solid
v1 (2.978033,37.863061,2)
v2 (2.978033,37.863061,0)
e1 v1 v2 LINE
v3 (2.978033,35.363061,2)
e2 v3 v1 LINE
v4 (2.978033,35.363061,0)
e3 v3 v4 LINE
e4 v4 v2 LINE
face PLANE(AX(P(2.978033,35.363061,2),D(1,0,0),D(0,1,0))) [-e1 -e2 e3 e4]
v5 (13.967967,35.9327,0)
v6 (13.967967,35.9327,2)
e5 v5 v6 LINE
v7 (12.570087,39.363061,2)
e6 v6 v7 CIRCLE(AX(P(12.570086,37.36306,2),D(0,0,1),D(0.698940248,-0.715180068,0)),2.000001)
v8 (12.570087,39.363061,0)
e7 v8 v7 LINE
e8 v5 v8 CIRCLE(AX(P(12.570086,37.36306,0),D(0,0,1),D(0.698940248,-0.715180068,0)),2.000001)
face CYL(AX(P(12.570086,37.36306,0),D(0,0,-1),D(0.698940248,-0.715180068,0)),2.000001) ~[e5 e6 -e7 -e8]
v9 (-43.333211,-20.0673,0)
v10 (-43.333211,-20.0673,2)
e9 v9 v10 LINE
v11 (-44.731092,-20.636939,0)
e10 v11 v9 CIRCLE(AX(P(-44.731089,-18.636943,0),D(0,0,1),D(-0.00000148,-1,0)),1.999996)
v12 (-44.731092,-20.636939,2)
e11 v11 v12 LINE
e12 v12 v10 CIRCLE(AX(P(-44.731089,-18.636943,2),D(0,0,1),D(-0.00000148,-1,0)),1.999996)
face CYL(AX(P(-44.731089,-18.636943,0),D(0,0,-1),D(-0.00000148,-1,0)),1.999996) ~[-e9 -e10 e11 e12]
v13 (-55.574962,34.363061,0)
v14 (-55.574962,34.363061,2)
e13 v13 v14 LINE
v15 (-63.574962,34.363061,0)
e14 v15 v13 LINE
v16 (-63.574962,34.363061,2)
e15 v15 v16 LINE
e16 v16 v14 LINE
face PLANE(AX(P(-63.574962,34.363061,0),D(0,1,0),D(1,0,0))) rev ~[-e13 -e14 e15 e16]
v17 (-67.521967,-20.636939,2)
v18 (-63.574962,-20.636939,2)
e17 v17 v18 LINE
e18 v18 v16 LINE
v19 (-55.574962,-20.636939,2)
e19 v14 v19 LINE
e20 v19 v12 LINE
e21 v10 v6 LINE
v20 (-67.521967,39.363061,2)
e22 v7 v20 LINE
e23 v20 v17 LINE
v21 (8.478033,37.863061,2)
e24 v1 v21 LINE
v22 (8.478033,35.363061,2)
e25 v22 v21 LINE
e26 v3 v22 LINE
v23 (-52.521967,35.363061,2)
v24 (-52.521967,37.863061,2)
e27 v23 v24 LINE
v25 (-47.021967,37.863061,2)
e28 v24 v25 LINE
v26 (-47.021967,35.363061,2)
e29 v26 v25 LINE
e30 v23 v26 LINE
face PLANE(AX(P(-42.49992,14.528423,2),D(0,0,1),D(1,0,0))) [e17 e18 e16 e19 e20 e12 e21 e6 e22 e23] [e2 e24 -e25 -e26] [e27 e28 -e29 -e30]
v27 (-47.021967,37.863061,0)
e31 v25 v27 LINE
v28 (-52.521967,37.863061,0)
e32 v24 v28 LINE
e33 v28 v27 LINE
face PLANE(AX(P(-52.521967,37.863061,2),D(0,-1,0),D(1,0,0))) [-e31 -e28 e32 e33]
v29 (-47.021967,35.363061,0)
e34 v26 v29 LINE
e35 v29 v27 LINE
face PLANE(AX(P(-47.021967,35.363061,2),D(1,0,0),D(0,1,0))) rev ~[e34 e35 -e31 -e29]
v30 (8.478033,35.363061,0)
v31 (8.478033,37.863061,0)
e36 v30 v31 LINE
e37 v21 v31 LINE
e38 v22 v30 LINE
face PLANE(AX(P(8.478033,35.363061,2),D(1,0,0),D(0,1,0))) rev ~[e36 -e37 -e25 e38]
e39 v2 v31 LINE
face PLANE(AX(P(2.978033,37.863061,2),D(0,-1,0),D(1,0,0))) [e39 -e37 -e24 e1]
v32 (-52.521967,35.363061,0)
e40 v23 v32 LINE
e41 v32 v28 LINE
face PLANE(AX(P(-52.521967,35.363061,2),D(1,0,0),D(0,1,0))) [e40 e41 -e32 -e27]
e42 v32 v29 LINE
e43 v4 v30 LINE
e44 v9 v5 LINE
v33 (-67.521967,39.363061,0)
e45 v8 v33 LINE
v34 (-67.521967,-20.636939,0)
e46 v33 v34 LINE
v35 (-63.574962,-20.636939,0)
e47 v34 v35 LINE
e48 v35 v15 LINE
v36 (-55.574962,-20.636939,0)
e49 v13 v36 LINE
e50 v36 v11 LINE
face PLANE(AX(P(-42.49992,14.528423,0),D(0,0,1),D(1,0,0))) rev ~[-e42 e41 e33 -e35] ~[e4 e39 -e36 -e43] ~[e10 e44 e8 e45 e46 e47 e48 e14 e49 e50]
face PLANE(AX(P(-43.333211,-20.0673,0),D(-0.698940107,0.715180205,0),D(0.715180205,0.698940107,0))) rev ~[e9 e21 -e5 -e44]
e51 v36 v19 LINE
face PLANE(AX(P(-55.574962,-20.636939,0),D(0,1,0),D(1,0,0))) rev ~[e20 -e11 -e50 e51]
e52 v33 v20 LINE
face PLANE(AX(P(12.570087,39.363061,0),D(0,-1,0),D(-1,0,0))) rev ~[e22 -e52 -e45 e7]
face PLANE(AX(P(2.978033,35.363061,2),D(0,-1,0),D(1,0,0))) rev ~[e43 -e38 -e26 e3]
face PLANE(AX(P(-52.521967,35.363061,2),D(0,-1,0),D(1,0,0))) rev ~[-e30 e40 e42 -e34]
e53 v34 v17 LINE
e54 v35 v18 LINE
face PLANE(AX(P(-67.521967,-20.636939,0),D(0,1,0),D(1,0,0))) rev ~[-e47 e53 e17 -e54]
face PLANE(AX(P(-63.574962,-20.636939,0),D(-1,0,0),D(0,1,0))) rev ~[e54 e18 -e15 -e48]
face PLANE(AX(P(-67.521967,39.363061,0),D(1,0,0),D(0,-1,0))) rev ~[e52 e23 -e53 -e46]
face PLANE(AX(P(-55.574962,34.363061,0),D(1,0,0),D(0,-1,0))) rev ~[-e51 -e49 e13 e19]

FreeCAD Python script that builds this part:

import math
import FreeCAD as App
import Part
import Sketcher
from FreeCAD import Vector
Q = App.Units.Quantity

doc = App.newDocument("Part")
params = doc.addObject("Spreadsheet::Sheet", "Params")
for row, (alias, value) in enumerate([
    ("sketch1_radius", "2.000001 mm"),
    ("sketch1_width", "8 mm"),
    ("sketch1_height", "60 mm"),
    ("sketch1_height2", "55 mm"),
    ("pad1_length", "2 mm"),
    ("sketch2_width", "5.5 mm"),
    ("sketch2_height", "2.5 mm"),
    ("pocket1_length", "25 mm"),
], start=1):
    params.set(f"A{row}", alias)
    params.set(f"B{row}", "=" + value)
    params.setAlias(f"B{row}", alias)

body = doc.addObject("PartDesign::Body", "Body")

sketch1 = body.newObject("Sketcher::SketchObject", "Sketch")
sketch1.AttachmentSupport = (doc.getObject("XY_Plane"), [""])
sketch1.MapMode = "FlatFace"
sketch1.addGeometry([
    Part.LineSegment(Vector(12.6, 39.4, 0), Vector(-67.5, 39.4, 0)),
    Part.LineSegment(Vector(-67.5, 39.4, 0), Vector(-67.5, -20.6, 0)),
    Part.LineSegment(Vector(-67.5, -20.6, 0), Vector(-63.6, -20.6, 0)),
    Part.LineSegment(Vector(-63.6, -20.6, 0), Vector(-63.6, 34.4, 0)),
    Part.LineSegment(Vector(-63.6, 34.4, 0), Vector(-55.6, 34.4, 0)),
    Part.LineSegment(Vector(-55.6, 34.4, 0), Vector(-55.6, -20.6, 0)),
    Part.LineSegment(Vector(-55.6, -20.6, 0), Vector(-44.7, -20.6, 0)),
    Part.ArcOfCircle(Part.Circle(Vector(-44.7, -18.6, 0), Vector(0, 0, 1), 2), math.radians(-90), math.radians(-46)),
    Part.LineSegment(Vector(-43.3, -20.1, 0), Vector(14, 35.9, 0)),
    Part.ArcOfCircle(Part.Circle(Vector(12.6, 37.4, 0), Vector(0, 0, 1), 2), math.radians(-46), math.radians(90)),
], False)
sketch1.addConstraint([
    Sketcher.Constraint("Coincident", 0, 2, 1, 1),
    Sketcher.Constraint("Coincident", 1, 2, 2, 1),
    Sketcher.Constraint("Coincident", 2, 2, 3, 1),
    Sketcher.Constraint("Coincident", 3, 2, 4, 1),
    Sketcher.Constraint("Coincident", 4, 2, 5, 1),
    Sketcher.Constraint("Coincident", 5, 2, 6, 1),
    Sketcher.Constraint("Tangent", 6, 2, 7, 1),
    Sketcher.Constraint("Tangent", 7, 2, 8, 1),
    Sketcher.Constraint("Tangent", 8, 2, 9, 1),
    Sketcher.Constraint("Tangent", 9, 2, 0, 1),
    Sketcher.Constraint("Horizontal", 0),
    Sketcher.Constraint("Vertical", 1),
    Sketcher.Constraint("Horizontal", 2),
    Sketcher.Constraint("Vertical", 3),
    Sketcher.Constraint("Horizontal", 4),
    Sketcher.Constraint("Vertical", 5),
    Sketcher.Constraint("Horizontal", 6),
    Sketcher.Constraint("Horizontal", 2, 2, 5, 2),
    Sketcher.Constraint("Radius", 9, Q("2.000001 mm")),
    Sketcher.Constraint("DistanceX", 4, 1, 4, 2, Q("8 mm")),
    Sketcher.Constraint("DistanceY", 1, 2, 1, 1, Q("60 mm")),
    Sketcher.Constraint("DistanceY", 3, 1, 3, 2, Q("55 mm")),
    Sketcher.Constraint("DistanceY", 7, 2, 8, 2, Q("56 mm")),
    Sketcher.Constraint("DistanceX", 6, 1, 6, 2, Q("10.84387 mm")),
    Sketcher.Constraint("DistanceY", 7, 2, -1, 1, Q("20.0673 mm")),
    Sketcher.Constraint("DistanceX", 0, 2, 0, 1, Q("80.092054 mm")),
    Sketcher.Constraint("DistanceX", 2, 1, 2, 2, Q("3.947005 mm")),
    Sketcher.Constraint("DistanceX", 7, 3, -1, 1, Q("44.731089 mm")),
])
sketch1.setExpression("Constraints[18]", "Params.sketch1_radius")
sketch1.setExpression("Constraints[19]", "Params.sketch1_width")
sketch1.setExpression("Constraints[20]", "Params.sketch1_height")
sketch1.setExpression("Constraints[21]", "Params.sketch1_height2")
pad1 = body.newObject("PartDesign::Pad", "Pad")
pad1.Profile = sketch1
pad1.setExpression("Length", "Params.pad1_length")

sketch2 = body.newObject("Sketcher::SketchObject", "Sketch001")
sketch2.AttachmentSupport = (doc.getObject("XY_Plane"), [""])
sketch2.MapMode = "FlatFace"
sketch2.AttachmentOffset = App.Placement(Vector(0, 0, 2), App.Rotation())
sketch2.addGeometry([
    Part.LineSegment(Vector(-52.5, 37.9, 0), Vector(-52.5, 35.4, 0)),
    Part.LineSegment(Vector(-52.5, 35.4, 0), Vector(-47, 35.4, 0)),
    Part.LineSegment(Vector(-47, 35.4, 0), Vector(-47, 37.9, 0)),
    Part.LineSegment(Vector(-47, 37.9, 0), Vector(-52.5, 37.9, 0)),
    Part.LineSegment(Vector(3, 37.9, 0), Vector(3, 35.4, 0)),
    Part.LineSegment(Vector(3, 35.4, 0), Vector(8.5, 35.4, 0)),
    Part.LineSegment(Vector(8.5, 35.4, 0), Vector(8.5, 37.9, 0)),
    Part.LineSegment(Vector(8.5, 37.9, 0), Vector(3, 37.9, 0)),
], False)
sketch2.addConstraint([
    Sketcher.Constraint("Coincident", 0, 2, 1, 1),
    Sketcher.Constraint("Coincident", 1, 2, 2, 1),
    Sketcher.Constraint("Coincident", 2, 2, 3, 1),
    Sketcher.Constraint("Coincident", 3, 2, 0, 1),
    Sketcher.Constraint("Coincident", 4, 2, 5, 1),
    Sketcher.Constraint("Coincident", 5, 2, 6, 1),
    Sketcher.Constraint("Coincident", 6, 2, 7, 1),
    Sketcher.Constraint("Coincident", 7, 2, 4, 1),
    Sketcher.Constraint("Vertical", 0),
    Sketcher.Constraint("Horizontal", 1),
    Sketcher.Constraint("Vertical", 2),
    Sketcher.Constraint("Horizontal", 3),
    Sketcher.Constraint("Vertical", 4),
    Sketcher.Constraint("Horizontal", 5),
    Sketcher.Constraint("Vertical", 6),
    Sketcher.Constraint("Horizontal", 7),
    Sketcher.Constraint("Horizontal", 1, 2, 4, 2),
    Sketcher.Constraint("Horizontal", 3, 2, 6, 2),
    Sketcher.Constraint("Equal", 3, 5),
    Sketcher.Constraint("DistanceX", 1, 1, 1, 2, Q("5.5 mm")),
    Sketcher.Constraint("DistanceY", 0, 2, 0, 1, Q("2.5 mm")),
    Sketcher.Constraint("DistanceX", 1, 2, 4, 2, Q("50 mm")),
    Sketcher.Constraint("DistanceY", -1, 1, 0, 2, Q("35.363061 mm")),
    Sketcher.Constraint("DistanceX", 0, 2, -1, 1, Q("52.521967 mm")),
])
sketch2.setExpression("Constraints[19]", "Params.sketch2_width")
sketch2.setExpression("Constraints[20]", "Params.sketch2_height")
pocket1 = body.newObject("PartDesign::Pocket", "Pocket")
pocket1.Profile = sketch2
pocket1.setExpression("Length", "Params.pocket1_length")

doc.recompute()
